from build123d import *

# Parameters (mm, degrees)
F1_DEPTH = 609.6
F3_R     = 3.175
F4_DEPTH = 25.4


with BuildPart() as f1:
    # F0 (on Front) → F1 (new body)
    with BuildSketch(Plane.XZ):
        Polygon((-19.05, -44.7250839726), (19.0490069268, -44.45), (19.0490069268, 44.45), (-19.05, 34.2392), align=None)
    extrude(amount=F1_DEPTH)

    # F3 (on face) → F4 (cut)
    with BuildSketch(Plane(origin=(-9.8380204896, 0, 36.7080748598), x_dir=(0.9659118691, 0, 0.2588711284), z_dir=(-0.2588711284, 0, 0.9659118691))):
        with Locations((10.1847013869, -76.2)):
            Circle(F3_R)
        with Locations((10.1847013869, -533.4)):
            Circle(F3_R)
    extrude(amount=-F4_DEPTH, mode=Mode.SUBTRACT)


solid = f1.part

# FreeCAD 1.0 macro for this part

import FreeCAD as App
import Part
import Sketcher
from FreeCAD import Vector
Q = App.Units.Quantity


def add_polygon(sketch, points):
    """Adds a closed chain of lines whose ends are joined by coincident constraints."""
    first, n = sketch.GeometryCount, len(points)
    for a, b in zip(points, points[1:] + points[:1]):
        sketch.addGeometry(Part.LineSegment(App.Vector(*a, 0), App.Vector(*b, 0)), False)
    for i in range(n):
        sketch.addConstraint(Sketcher.Constraint("Coincident", first + i, 2, first + (i + 1) % n, 1))

doc = App.newDocument("Part")
body = doc.addObject("PartDesign::Body", "Body")

sketch1 = body.newObject("Sketcher::SketchObject", "Sketch")
sketch1.AttachmentSupport = (doc.getObject("XZ_Plane"), [""])
sketch1.MapMode = "FlatFace"
add_polygon(sketch1, [(-19, -45), (19, -44), (19, 44), (-19, 34)])
sketch1.addConstraint([
    Sketcher.Constraint("Vertical", 1),
    Sketcher.Constraint("Vertical", 3),
    Sketcher.Constraint("DistanceY", 1, 1, 1, 2, Q("3.5 in")),
    Sketcher.Constraint("Distance", 0, Q("1.5 in")),
    Sketcher.Constraint("DistanceY", 0, 2, -1, 1, Q("1.75 in")),
    Sketcher.Constraint("DistanceX", 2, 2, -1, 1, Q("0.75 in")),
    Sketcher.Constraint("DistanceY", -1, 1, 2, 2, Q("1.348 in")),
    Sketcher.Constraint("DistanceY", 3, 2, 3, 1, Q("78.964284 mm")),
])
pad1 = body.newObject("PartDesign::Pad", "Pad")
pad1.Profile = sketch1
pad1.Length = Q("24 in")

sketch2 = body.newObject("Sketcher::SketchObject", "Sketch001")
sketch2.Placement = App.Placement(Vector(-9.83802, 0, 36.708075), App.Rotation(Vector(0.965911869, 0, 0.258871128), Vector(0, 1, 0), Vector(-0.258871128, 0, 0.965911869), "ZXY"))
sketch2.addGeometry([
    Part.Circle(Vector(10.2, -76.2, 0), Vector(0, 0, 1), 3.2),
    Part.Circle(Vector(10.2, -533.4, 0), Vector(0, 0, 1), 3.2),
], False)
sketch2.addConstraint([
    Sketcher.Constraint("Equal", 0, 1),
    Sketcher.Constraint("Vertical", 0, 3, 1, 3),
    Sketcher.Constraint("Diameter", 0, Q("0.25 in")),
    Sketcher.Constraint("DistanceY", 0, 3, -1, 1, Q("3 in")),
    Sketcher.Constraint("DistanceY", 1, 3, -1, 1, Q("21 in")),
    Sketcher.Constraint("DistanceX", -1, 1, 0, 3, Q("10.184701 mm")),
])
pocket1 = body.newObject("PartDesign::Pocket", "Pocket")
pocket1.Profile = sketch2
pocket1.Length = Q("1 in")

doc.recompute()
